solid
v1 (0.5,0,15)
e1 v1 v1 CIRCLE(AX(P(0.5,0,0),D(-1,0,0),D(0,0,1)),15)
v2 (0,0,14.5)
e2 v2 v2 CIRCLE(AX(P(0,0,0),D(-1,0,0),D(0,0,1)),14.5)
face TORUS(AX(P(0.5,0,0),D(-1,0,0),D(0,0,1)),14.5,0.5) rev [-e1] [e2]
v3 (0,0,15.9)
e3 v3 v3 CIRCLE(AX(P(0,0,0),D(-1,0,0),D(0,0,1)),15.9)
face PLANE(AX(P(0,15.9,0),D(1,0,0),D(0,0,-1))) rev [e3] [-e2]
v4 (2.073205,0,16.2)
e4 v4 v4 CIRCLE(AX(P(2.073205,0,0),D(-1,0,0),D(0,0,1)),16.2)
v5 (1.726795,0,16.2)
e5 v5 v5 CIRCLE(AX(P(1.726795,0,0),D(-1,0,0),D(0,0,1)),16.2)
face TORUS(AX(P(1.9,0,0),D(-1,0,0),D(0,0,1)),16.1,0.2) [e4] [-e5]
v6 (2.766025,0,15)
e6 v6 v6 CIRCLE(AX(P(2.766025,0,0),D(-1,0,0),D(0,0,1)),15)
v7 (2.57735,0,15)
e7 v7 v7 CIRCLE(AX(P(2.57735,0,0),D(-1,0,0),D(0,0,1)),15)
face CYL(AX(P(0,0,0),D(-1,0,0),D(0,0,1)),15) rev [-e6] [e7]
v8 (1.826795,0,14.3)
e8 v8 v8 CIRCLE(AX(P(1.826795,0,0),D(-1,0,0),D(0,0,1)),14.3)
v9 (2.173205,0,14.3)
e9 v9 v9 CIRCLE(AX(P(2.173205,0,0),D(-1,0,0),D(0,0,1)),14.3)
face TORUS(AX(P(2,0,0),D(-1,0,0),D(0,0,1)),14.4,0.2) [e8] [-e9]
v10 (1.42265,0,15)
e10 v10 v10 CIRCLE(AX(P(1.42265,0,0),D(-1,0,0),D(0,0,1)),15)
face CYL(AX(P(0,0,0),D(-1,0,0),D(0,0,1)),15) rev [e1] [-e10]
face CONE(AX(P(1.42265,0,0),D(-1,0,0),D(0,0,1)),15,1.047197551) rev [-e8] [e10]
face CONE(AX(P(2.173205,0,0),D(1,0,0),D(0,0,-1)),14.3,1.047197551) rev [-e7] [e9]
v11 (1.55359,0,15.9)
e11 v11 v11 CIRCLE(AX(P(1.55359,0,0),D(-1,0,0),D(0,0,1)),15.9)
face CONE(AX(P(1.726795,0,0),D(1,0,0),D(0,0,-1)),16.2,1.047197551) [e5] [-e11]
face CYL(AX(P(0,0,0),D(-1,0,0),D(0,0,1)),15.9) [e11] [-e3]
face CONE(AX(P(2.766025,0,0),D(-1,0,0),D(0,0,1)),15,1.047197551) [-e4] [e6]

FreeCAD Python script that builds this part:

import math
import FreeCAD as App
import Part
import Sketcher
Q = App.Units.Quantity

doc = App.newDocument("Part")
body = doc.addObject("PartDesign::Body", "Body")

# Sketch on XY plane
sketch1 = doc.addObject("Sketcher::SketchObject", "Sketch")
body.addObject(sketch1)
sketch1.AttachmentSupport = (doc.XY_Plane, [""])
sketch1.MapMode = "FlatFace"
sketch1.addGeometry([
    Part.LineSegment(App.Vector(1.55, 15.9, 0), App.Vector(0, 15.9, 0)),  # 0
    Part.LineSegment(App.Vector(0, 15.9, 0), App.Vector(0, 15, 0)),  # 1
    Part.LineSegment(App.Vector(0, 15, 0), App.Vector(1.42, 15, 0)),  # 2
    Part.LineSegment(App.Vector(1.42, 15, 0), App.Vector(1.83, 14.3, 0)),  # 3
    Part.ArcOfCircle(Part.Circle(App.Vector(2, 14.4, 0), App.Vector(0, 0, 1), 0.2), math.radians(-150), math.radians(-30)),  # 4
    Part.LineSegment(App.Vector(2.17, 14.3, 0), App.Vector(2.58, 15, 0)),  # 5
    Part.LineSegment(App.Vector(2.58, 15, 0), App.Vector(2.77, 15, 0)),  # 6
    Part.LineSegment(App.Vector(2.77, 15, 0), App.Vector(2.07, 16.2, 0)),  # 7
    Part.ArcOfCircle(Part.Circle(App.Vector(1.9, 16.1, 0), App.Vector(0, 0, 1), 0.2), math.radians(30), math.radians(150)),  # 8
    Part.LineSegment(App.Vector(1.73, 16.2, 0), App.Vector(1.55, 15.9, 0)),  # 9
], False)
sketch1.addConstraint([
    Sketcher.Constraint("Coincident", 0, 2, 1, 1),
    Sketcher.Constraint("Coincident", 1, 2, 2, 1),
    Sketcher.Constraint("Coincident", 2, 2, 3, 1),
    Sketcher.Constraint("Tangent", 3, 2, 4, 1),
    Sketcher.Constraint("Tangent", 4, 2, 5, 1),
    Sketcher.Constraint("Coincident", 5, 2, 6, 1),
    Sketcher.Constraint("Coincident", 6, 2, 7, 1),
    Sketcher.Constraint("Tangent", 7, 2, 8, 1),
    Sketcher.Constraint("Tangent", 8, 2, 9, 1),
    Sketcher.Constraint("Coincident", 9, 2, 0, 1),
    Sketcher.Constraint("Horizontal", 0),
    Sketcher.Constraint("Vertical", 1),
    Sketcher.Constraint("Horizontal", 2),
    Sketcher.Constraint("Horizontal", 6),
    Sketcher.Constraint("Equal", 4, 8),
    Sketcher.Constraint("PointOnObject", 0, 2, -2),
    Sketcher.Constraint("Parallel", 3, 7),
    Sketcher.Constraint("Parallel", 5, 9),
    Sketcher.Constraint("Horizontal", 3, 2, 4, 2),
    Sketcher.Constraint("Horizontal", 2, 2, 5, 2),
    Sketcher.Constraint("Radius", 4, 0.2),
    Sketcher.Constraint("Angle", 3, Q("-60 deg")),
    Sketcher.Constraint("DistanceY", 1, 2, 1, 1, 0.9),
    Sketcher.Constraint("DistanceX", -1, 1, 4, 3, 2.0),
    Sketcher.Constraint("DistanceY", -1, 1, 1, 2, 15.0),
    Sketcher.Constraint("DistanceY", -1, 1, 4, 3, 14.4),
    Sketcher.Constraint("DistanceX", -1, 1, 8, 3, 1.9),
    Sketcher.Constraint("DistanceY", -1, 1, 8, 3, 16.1),
])
revolution = doc.addObject("PartDesign::Revolution", "Revolution")
body.addObject(revolution)
revolution.Profile = sketch1
revolution.ReferenceAxis = (sketch1, ["H_Axis"])
revolution.Angle = 360

# Sketch on XY plane
sketch2 = doc.addObject("Sketcher::SketchObject", "Sketch001")
body.addObject(sketch2)
sketch2.AttachmentSupport = (doc.XY_Plane, [""])
sketch2.MapMode = "FlatFace"
sketch2.addGeometry([
    Part.LineSegment(App.Vector(0, 15, 0), App.Vector(0, 14.5, 0)),
    Part.ArcOfCircle(Part.Circle(App.Vector(0.5, 14.5, 0), App.Vector(0, 0, 1), 0.5), math.radians(90), math.radians(180)),
    Part.LineSegment(App.Vector(0.5, 15, 0), App.Vector(0, 15, 0)),
], False)
sketch2.addConstraint([
    Sketcher.Constraint("Tangent", 0, 2, 1, 2),
    Sketcher.Constraint("Tangent", 1, 1, 2, 1),
    Sketcher.Constraint("Coincident", 2, 2, 0, 1),
    Sketcher.Constraint("Vertical", 0),
    Sketcher.Constraint("Horizontal", 2),
    Sketcher.Constraint("PointOnObject", 0, 2, -2),
    Sketcher.Constraint("Radius", 1, 0.5),
    Sketcher.Constraint("DistanceY", -1, 1, 1, 1, 15.0),
])
revolution2 = doc.addObject("PartDesign::Revolution", "Revolution001")
body.addObject(revolution2)
revolution2.Profile = sketch2
revolution2.ReferenceAxis = (sketch2, ["H_Axis"])
revolution2.Angle = 360

doc.recompute()
